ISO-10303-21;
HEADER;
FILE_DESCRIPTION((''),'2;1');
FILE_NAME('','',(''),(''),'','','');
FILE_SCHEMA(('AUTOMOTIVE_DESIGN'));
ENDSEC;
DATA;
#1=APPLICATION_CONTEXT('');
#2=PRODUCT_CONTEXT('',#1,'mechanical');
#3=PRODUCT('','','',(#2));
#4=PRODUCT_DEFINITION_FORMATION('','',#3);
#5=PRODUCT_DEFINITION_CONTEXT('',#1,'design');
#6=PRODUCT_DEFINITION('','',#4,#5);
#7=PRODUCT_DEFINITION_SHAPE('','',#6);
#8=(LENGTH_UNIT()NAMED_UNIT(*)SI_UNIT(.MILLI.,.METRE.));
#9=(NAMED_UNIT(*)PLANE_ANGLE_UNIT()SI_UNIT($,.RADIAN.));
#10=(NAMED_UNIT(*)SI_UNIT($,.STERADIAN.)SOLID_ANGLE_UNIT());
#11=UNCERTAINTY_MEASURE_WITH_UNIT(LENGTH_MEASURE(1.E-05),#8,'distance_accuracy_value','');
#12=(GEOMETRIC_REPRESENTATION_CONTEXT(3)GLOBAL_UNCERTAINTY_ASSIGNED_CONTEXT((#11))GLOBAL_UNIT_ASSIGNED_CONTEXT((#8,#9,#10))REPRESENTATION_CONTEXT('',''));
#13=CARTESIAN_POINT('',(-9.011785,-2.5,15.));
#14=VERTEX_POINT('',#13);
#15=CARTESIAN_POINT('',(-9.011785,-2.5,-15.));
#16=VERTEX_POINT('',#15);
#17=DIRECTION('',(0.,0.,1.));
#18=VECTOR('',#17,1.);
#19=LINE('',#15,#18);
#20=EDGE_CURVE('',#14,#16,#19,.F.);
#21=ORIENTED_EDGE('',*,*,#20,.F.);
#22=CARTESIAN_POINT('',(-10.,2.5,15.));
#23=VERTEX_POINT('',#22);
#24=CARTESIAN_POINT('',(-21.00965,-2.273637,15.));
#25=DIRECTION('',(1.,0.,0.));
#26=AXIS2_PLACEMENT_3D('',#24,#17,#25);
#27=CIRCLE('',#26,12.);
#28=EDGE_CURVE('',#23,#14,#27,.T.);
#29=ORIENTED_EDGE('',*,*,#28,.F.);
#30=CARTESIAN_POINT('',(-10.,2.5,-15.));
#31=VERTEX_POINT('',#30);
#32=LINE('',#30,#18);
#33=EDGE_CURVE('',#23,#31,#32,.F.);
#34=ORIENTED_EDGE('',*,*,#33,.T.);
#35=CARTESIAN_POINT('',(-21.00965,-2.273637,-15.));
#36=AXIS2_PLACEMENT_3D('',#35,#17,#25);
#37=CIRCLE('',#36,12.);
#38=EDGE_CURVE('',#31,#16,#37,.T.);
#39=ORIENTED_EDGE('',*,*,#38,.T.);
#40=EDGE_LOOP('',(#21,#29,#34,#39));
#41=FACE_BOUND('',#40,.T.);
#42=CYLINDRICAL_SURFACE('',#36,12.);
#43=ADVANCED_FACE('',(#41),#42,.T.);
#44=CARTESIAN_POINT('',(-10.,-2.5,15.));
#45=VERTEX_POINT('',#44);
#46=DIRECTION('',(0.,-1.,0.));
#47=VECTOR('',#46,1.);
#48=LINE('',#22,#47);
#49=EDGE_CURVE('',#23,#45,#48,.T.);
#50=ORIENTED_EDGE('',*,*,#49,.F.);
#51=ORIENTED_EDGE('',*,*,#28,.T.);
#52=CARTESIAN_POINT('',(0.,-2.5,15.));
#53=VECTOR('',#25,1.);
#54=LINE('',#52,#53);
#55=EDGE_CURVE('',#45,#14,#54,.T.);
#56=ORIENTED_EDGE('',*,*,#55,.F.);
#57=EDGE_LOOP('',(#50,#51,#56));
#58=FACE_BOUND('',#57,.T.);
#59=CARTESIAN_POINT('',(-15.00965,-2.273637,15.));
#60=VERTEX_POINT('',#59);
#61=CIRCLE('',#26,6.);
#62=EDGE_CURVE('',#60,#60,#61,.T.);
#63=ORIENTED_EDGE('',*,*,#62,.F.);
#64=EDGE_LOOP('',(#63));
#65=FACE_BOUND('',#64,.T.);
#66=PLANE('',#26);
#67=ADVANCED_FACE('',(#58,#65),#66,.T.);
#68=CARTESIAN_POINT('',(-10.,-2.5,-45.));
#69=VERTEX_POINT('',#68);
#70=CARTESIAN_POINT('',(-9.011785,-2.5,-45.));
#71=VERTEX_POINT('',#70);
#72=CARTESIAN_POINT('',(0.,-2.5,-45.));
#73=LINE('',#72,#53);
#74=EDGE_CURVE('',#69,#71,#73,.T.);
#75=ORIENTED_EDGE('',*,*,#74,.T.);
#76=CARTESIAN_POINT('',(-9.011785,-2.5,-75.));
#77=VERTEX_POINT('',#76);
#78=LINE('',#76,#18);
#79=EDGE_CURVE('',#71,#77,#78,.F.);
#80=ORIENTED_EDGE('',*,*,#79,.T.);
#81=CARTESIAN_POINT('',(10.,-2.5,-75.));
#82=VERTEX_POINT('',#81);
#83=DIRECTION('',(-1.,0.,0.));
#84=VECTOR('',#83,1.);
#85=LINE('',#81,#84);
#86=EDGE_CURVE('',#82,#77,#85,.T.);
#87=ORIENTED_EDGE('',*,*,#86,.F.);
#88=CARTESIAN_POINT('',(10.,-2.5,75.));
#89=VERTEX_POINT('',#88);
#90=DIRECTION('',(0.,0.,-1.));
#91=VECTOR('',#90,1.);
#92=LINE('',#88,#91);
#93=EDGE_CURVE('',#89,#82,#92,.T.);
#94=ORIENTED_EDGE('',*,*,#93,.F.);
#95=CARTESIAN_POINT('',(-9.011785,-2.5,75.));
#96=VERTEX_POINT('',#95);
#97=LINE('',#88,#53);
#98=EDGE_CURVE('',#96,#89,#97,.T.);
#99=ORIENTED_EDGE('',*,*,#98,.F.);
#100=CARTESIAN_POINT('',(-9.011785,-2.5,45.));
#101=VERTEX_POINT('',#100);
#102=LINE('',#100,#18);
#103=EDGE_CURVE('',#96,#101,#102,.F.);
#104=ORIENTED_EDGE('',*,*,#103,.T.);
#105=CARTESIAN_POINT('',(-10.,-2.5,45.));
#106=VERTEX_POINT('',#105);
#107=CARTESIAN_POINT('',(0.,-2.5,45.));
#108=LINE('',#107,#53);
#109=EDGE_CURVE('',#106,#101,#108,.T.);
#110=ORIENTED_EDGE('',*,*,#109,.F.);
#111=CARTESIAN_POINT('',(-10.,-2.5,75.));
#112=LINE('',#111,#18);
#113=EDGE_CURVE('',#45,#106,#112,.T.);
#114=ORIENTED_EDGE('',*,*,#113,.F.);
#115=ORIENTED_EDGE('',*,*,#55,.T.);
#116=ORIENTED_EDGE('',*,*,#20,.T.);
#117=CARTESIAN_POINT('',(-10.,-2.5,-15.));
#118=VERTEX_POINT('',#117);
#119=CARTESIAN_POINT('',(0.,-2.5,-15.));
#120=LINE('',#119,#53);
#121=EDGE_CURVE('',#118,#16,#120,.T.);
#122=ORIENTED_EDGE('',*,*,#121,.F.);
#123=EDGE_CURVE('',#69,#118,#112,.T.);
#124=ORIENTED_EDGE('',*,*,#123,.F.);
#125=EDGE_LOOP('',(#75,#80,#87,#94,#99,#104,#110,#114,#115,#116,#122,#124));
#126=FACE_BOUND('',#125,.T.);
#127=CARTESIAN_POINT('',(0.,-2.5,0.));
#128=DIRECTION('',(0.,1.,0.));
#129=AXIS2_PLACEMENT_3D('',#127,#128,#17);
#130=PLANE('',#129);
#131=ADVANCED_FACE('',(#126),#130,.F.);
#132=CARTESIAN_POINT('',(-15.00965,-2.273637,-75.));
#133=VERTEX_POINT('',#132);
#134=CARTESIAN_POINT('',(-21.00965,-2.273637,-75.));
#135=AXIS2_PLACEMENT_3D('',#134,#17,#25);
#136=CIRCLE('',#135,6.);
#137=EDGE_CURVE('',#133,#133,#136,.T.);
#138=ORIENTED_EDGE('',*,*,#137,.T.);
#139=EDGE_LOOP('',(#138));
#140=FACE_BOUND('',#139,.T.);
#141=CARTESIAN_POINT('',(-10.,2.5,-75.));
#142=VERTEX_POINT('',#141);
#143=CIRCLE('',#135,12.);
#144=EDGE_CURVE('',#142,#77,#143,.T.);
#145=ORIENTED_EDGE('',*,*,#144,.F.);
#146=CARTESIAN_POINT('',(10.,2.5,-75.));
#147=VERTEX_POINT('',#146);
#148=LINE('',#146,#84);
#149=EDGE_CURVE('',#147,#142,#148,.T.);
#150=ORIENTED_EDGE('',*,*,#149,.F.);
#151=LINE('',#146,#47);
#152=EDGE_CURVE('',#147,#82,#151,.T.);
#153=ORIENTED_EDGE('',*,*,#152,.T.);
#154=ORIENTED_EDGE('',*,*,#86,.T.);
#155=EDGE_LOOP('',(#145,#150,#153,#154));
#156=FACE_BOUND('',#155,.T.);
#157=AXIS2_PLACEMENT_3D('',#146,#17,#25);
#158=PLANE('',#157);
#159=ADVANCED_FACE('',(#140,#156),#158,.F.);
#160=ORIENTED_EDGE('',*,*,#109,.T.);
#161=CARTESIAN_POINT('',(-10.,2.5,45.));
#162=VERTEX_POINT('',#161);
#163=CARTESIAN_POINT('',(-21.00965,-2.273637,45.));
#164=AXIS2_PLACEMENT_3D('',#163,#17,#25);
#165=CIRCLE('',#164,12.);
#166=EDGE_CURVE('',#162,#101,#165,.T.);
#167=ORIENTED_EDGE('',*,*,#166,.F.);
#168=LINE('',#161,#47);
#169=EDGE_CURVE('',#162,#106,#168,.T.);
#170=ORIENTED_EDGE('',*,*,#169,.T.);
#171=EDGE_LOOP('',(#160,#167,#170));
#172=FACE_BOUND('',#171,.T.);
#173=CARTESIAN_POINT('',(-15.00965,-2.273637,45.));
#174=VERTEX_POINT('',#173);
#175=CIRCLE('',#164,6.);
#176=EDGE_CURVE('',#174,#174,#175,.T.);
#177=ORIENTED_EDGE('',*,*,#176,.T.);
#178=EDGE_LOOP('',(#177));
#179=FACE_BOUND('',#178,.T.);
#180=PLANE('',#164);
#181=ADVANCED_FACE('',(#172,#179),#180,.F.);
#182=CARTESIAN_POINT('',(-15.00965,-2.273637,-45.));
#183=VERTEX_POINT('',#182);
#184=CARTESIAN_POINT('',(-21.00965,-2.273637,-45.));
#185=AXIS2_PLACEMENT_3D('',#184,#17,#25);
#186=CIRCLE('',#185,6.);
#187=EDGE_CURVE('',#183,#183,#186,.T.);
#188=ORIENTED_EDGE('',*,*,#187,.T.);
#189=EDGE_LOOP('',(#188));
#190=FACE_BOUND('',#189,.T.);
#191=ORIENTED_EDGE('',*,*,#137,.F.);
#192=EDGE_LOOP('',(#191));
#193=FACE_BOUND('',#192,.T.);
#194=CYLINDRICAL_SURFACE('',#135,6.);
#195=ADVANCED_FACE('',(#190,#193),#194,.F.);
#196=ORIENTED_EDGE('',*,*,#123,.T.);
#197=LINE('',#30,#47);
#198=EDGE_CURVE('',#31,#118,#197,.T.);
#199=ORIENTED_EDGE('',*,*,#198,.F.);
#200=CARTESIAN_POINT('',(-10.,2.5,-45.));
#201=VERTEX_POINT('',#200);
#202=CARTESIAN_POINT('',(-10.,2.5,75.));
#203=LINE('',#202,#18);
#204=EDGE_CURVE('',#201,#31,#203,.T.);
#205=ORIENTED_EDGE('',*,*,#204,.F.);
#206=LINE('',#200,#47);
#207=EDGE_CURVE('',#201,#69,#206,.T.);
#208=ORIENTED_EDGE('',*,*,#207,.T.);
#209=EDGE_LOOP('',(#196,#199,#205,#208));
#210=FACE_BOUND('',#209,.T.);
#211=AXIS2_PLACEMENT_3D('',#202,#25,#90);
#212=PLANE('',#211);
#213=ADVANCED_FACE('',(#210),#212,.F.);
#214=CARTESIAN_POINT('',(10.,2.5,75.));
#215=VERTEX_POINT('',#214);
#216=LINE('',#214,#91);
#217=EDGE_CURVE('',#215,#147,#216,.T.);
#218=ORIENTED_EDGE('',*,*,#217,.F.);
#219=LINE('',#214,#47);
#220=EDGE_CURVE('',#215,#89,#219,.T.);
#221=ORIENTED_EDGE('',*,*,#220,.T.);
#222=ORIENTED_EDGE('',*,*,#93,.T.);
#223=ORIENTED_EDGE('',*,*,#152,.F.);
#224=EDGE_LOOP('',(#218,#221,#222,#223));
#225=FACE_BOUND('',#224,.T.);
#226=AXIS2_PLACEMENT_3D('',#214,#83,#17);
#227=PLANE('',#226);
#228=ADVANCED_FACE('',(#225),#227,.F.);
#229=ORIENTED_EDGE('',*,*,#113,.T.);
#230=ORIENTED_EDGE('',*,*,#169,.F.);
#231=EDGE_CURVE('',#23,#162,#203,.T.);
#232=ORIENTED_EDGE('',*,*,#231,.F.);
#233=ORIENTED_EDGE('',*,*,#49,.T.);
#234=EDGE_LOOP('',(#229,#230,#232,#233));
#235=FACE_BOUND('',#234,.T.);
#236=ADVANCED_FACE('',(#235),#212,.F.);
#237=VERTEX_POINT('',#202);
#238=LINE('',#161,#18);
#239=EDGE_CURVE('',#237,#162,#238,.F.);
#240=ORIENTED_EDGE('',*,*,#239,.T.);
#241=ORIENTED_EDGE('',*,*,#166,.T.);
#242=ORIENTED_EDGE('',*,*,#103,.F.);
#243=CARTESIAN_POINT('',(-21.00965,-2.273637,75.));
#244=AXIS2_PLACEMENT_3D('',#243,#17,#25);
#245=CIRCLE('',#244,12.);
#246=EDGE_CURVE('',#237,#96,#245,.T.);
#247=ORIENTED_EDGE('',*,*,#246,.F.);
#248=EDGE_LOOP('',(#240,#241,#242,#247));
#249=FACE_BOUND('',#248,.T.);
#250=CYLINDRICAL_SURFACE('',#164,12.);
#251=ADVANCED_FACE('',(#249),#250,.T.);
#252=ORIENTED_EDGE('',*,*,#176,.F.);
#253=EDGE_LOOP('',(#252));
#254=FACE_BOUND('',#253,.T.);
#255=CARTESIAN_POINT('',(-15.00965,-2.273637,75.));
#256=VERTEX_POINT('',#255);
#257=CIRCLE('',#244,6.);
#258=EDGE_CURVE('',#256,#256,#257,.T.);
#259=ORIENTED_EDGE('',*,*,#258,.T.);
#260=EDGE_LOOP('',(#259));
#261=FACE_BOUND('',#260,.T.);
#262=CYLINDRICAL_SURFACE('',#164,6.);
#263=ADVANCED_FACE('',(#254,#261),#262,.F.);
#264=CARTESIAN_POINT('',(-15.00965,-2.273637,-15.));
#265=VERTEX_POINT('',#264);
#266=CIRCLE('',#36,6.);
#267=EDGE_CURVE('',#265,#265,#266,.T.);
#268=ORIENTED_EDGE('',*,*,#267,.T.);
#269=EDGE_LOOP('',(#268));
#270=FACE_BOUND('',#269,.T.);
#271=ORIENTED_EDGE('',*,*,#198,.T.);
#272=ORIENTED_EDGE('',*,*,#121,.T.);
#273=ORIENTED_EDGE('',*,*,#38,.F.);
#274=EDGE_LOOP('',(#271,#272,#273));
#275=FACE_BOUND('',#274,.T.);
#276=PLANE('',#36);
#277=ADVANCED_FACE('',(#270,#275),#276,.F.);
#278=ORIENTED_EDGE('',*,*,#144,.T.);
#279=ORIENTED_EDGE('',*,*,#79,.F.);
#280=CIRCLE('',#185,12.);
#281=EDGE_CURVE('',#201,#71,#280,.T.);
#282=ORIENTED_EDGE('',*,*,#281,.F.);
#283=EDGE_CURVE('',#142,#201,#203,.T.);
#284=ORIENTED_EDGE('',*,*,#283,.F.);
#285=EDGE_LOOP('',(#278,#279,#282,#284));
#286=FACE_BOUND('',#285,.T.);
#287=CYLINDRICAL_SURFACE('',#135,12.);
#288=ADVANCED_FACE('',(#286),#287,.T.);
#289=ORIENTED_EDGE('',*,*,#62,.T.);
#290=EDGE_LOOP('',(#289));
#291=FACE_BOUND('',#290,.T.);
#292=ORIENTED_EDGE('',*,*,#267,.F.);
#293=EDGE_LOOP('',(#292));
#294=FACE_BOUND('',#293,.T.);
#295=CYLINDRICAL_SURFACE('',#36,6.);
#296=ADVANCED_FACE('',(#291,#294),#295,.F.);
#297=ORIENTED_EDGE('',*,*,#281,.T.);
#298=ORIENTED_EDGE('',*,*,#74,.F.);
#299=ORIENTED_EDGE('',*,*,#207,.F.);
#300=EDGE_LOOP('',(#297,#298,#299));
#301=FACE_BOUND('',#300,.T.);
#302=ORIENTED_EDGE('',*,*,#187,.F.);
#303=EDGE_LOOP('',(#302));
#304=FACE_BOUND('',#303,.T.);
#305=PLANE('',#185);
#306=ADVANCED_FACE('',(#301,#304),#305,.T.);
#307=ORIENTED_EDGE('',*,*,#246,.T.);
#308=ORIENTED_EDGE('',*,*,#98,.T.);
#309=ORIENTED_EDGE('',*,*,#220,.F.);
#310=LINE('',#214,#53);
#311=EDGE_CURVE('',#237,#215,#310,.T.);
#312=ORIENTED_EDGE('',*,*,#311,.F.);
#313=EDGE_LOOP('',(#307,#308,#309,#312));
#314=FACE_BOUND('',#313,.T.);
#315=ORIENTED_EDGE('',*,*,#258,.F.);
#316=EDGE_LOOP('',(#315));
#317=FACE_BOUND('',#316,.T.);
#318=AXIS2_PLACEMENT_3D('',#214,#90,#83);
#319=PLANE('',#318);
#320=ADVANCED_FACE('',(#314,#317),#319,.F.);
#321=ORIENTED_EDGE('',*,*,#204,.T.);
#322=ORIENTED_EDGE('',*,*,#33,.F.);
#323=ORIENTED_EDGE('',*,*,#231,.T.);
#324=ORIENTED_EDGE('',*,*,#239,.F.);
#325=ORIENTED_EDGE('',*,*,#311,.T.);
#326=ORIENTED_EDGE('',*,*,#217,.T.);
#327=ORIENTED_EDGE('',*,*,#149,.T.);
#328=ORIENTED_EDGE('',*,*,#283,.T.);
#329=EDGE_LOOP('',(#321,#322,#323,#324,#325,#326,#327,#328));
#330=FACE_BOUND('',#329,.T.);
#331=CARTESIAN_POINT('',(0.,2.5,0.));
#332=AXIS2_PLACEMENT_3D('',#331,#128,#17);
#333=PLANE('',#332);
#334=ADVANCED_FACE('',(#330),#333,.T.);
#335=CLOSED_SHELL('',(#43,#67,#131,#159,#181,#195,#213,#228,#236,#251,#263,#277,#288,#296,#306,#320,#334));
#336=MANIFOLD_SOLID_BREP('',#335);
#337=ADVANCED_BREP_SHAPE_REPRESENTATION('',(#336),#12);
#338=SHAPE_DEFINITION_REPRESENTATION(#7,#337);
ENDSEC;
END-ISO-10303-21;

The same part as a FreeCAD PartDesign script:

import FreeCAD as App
import Part
import Sketcher
Q = App.Units.Quantity

doc = App.newDocument("Part")
body = doc.addObject("PartDesign::Body", "Body")

# Sketch on XZ plane
sketch1 = body.newObject("Sketcher::SketchObject", "Sketch")
sketch1.AttachmentSupport = (doc.getObject("XZ_Plane"), [""])
sketch1.MapMode = "FlatFace"
sketch1.addGeometry([
    Part.LineSegment(App.Vector(-10, -75, 0), App.Vector(-10, 75, 0)),
    Part.LineSegment(App.Vector(-10, 75, 0), App.Vector(10, 75, 0)),
    Part.LineSegment(App.Vector(10, 75, 0), App.Vector(10, -75, 0)),
    Part.LineSegment(App.Vector(10, -75, 0), App.Vector(-10, -75, 0)),
], False)
sketch1.addConstraint([
    Sketcher.Constraint("Coincident", 0, 2, 1, 1),
    Sketcher.Constraint("Coincident", 1, 2, 2, 1),
    Sketcher.Constraint("Coincident", 2, 2, 3, 1),
    Sketcher.Constraint("Coincident", 3, 2, 0, 1),
    Sketcher.Constraint("Vertical", 0),
    Sketcher.Constraint("Horizontal", 1),
    Sketcher.Constraint("Vertical", 2),
    Sketcher.Constraint("Horizontal", 3),
    Sketcher.Constraint("Symmetric", 0, 2, 2, 2, -1, 1),
    Sketcher.Constraint("DistanceX", 1, 1, 1, 2, Q("20 mm")),
    Sketcher.Constraint("DistanceY", 0, 1, 0, 2, Q("150 mm")),
])
pad1 = body.newObject("PartDesign::Pad", "Pad")
pad1.Profile = sketch1
pad1.Length = 5
pad1.Midplane = True

# Sketch on XY plane
sketch2 = body.newObject("Sketcher::SketchObject", "Sketch001")
sketch2.AttachmentSupport = (doc.getObject("XY_Plane"), [""])
sketch2.MapMode = "FlatFace"
sketch2.AttachmentOffset = App.Placement(App.Vector(0, 0, 75), App.Rotation())
sketch2.addGeometry([
    Part.Circle(App.Vector(-21, -2, 0), App.Vector(0, 0, 1), 12),
    Part.Circle(App.Vector(-21, -2, 0), App.Vector(0, 0, 1), 6),
], False)
sketch2.addConstraint([
    Sketcher.Constraint("Coincident", 1, 3, 0, 3),
    Sketcher.Constraint("Diameter", 0, Q("24 mm")),
    Sketcher.Constraint("Diameter", 1, Q("12 mm")),
    Sketcher.Constraint("DistanceX", 0, 3, -1, 1, Q("21.00965 mm")),
    Sketcher.Constraint("DistanceY", 0, 3, -1, 1, Q("2.273637 mm")),
])
pad2 = body.newObject("PartDesign::Pad", "Pad001")
pad2.Profile = sketch2
pad2.Length = 30
pad2.Reversed = True
doc.recompute()

linearpattern = body.newObject("PartDesign::LinearPattern", "LinearPattern")
linearpattern.Originals = [pad2]
linearpattern.Direction = (doc.getObject("Z_Axis"), [""])
linearpattern.Mode = "offset"
linearpattern.Offset = 60
linearpattern.Occurrences = 3
linearpattern.Reversed = True
body.Tip = linearpattern

doc.recompute()
